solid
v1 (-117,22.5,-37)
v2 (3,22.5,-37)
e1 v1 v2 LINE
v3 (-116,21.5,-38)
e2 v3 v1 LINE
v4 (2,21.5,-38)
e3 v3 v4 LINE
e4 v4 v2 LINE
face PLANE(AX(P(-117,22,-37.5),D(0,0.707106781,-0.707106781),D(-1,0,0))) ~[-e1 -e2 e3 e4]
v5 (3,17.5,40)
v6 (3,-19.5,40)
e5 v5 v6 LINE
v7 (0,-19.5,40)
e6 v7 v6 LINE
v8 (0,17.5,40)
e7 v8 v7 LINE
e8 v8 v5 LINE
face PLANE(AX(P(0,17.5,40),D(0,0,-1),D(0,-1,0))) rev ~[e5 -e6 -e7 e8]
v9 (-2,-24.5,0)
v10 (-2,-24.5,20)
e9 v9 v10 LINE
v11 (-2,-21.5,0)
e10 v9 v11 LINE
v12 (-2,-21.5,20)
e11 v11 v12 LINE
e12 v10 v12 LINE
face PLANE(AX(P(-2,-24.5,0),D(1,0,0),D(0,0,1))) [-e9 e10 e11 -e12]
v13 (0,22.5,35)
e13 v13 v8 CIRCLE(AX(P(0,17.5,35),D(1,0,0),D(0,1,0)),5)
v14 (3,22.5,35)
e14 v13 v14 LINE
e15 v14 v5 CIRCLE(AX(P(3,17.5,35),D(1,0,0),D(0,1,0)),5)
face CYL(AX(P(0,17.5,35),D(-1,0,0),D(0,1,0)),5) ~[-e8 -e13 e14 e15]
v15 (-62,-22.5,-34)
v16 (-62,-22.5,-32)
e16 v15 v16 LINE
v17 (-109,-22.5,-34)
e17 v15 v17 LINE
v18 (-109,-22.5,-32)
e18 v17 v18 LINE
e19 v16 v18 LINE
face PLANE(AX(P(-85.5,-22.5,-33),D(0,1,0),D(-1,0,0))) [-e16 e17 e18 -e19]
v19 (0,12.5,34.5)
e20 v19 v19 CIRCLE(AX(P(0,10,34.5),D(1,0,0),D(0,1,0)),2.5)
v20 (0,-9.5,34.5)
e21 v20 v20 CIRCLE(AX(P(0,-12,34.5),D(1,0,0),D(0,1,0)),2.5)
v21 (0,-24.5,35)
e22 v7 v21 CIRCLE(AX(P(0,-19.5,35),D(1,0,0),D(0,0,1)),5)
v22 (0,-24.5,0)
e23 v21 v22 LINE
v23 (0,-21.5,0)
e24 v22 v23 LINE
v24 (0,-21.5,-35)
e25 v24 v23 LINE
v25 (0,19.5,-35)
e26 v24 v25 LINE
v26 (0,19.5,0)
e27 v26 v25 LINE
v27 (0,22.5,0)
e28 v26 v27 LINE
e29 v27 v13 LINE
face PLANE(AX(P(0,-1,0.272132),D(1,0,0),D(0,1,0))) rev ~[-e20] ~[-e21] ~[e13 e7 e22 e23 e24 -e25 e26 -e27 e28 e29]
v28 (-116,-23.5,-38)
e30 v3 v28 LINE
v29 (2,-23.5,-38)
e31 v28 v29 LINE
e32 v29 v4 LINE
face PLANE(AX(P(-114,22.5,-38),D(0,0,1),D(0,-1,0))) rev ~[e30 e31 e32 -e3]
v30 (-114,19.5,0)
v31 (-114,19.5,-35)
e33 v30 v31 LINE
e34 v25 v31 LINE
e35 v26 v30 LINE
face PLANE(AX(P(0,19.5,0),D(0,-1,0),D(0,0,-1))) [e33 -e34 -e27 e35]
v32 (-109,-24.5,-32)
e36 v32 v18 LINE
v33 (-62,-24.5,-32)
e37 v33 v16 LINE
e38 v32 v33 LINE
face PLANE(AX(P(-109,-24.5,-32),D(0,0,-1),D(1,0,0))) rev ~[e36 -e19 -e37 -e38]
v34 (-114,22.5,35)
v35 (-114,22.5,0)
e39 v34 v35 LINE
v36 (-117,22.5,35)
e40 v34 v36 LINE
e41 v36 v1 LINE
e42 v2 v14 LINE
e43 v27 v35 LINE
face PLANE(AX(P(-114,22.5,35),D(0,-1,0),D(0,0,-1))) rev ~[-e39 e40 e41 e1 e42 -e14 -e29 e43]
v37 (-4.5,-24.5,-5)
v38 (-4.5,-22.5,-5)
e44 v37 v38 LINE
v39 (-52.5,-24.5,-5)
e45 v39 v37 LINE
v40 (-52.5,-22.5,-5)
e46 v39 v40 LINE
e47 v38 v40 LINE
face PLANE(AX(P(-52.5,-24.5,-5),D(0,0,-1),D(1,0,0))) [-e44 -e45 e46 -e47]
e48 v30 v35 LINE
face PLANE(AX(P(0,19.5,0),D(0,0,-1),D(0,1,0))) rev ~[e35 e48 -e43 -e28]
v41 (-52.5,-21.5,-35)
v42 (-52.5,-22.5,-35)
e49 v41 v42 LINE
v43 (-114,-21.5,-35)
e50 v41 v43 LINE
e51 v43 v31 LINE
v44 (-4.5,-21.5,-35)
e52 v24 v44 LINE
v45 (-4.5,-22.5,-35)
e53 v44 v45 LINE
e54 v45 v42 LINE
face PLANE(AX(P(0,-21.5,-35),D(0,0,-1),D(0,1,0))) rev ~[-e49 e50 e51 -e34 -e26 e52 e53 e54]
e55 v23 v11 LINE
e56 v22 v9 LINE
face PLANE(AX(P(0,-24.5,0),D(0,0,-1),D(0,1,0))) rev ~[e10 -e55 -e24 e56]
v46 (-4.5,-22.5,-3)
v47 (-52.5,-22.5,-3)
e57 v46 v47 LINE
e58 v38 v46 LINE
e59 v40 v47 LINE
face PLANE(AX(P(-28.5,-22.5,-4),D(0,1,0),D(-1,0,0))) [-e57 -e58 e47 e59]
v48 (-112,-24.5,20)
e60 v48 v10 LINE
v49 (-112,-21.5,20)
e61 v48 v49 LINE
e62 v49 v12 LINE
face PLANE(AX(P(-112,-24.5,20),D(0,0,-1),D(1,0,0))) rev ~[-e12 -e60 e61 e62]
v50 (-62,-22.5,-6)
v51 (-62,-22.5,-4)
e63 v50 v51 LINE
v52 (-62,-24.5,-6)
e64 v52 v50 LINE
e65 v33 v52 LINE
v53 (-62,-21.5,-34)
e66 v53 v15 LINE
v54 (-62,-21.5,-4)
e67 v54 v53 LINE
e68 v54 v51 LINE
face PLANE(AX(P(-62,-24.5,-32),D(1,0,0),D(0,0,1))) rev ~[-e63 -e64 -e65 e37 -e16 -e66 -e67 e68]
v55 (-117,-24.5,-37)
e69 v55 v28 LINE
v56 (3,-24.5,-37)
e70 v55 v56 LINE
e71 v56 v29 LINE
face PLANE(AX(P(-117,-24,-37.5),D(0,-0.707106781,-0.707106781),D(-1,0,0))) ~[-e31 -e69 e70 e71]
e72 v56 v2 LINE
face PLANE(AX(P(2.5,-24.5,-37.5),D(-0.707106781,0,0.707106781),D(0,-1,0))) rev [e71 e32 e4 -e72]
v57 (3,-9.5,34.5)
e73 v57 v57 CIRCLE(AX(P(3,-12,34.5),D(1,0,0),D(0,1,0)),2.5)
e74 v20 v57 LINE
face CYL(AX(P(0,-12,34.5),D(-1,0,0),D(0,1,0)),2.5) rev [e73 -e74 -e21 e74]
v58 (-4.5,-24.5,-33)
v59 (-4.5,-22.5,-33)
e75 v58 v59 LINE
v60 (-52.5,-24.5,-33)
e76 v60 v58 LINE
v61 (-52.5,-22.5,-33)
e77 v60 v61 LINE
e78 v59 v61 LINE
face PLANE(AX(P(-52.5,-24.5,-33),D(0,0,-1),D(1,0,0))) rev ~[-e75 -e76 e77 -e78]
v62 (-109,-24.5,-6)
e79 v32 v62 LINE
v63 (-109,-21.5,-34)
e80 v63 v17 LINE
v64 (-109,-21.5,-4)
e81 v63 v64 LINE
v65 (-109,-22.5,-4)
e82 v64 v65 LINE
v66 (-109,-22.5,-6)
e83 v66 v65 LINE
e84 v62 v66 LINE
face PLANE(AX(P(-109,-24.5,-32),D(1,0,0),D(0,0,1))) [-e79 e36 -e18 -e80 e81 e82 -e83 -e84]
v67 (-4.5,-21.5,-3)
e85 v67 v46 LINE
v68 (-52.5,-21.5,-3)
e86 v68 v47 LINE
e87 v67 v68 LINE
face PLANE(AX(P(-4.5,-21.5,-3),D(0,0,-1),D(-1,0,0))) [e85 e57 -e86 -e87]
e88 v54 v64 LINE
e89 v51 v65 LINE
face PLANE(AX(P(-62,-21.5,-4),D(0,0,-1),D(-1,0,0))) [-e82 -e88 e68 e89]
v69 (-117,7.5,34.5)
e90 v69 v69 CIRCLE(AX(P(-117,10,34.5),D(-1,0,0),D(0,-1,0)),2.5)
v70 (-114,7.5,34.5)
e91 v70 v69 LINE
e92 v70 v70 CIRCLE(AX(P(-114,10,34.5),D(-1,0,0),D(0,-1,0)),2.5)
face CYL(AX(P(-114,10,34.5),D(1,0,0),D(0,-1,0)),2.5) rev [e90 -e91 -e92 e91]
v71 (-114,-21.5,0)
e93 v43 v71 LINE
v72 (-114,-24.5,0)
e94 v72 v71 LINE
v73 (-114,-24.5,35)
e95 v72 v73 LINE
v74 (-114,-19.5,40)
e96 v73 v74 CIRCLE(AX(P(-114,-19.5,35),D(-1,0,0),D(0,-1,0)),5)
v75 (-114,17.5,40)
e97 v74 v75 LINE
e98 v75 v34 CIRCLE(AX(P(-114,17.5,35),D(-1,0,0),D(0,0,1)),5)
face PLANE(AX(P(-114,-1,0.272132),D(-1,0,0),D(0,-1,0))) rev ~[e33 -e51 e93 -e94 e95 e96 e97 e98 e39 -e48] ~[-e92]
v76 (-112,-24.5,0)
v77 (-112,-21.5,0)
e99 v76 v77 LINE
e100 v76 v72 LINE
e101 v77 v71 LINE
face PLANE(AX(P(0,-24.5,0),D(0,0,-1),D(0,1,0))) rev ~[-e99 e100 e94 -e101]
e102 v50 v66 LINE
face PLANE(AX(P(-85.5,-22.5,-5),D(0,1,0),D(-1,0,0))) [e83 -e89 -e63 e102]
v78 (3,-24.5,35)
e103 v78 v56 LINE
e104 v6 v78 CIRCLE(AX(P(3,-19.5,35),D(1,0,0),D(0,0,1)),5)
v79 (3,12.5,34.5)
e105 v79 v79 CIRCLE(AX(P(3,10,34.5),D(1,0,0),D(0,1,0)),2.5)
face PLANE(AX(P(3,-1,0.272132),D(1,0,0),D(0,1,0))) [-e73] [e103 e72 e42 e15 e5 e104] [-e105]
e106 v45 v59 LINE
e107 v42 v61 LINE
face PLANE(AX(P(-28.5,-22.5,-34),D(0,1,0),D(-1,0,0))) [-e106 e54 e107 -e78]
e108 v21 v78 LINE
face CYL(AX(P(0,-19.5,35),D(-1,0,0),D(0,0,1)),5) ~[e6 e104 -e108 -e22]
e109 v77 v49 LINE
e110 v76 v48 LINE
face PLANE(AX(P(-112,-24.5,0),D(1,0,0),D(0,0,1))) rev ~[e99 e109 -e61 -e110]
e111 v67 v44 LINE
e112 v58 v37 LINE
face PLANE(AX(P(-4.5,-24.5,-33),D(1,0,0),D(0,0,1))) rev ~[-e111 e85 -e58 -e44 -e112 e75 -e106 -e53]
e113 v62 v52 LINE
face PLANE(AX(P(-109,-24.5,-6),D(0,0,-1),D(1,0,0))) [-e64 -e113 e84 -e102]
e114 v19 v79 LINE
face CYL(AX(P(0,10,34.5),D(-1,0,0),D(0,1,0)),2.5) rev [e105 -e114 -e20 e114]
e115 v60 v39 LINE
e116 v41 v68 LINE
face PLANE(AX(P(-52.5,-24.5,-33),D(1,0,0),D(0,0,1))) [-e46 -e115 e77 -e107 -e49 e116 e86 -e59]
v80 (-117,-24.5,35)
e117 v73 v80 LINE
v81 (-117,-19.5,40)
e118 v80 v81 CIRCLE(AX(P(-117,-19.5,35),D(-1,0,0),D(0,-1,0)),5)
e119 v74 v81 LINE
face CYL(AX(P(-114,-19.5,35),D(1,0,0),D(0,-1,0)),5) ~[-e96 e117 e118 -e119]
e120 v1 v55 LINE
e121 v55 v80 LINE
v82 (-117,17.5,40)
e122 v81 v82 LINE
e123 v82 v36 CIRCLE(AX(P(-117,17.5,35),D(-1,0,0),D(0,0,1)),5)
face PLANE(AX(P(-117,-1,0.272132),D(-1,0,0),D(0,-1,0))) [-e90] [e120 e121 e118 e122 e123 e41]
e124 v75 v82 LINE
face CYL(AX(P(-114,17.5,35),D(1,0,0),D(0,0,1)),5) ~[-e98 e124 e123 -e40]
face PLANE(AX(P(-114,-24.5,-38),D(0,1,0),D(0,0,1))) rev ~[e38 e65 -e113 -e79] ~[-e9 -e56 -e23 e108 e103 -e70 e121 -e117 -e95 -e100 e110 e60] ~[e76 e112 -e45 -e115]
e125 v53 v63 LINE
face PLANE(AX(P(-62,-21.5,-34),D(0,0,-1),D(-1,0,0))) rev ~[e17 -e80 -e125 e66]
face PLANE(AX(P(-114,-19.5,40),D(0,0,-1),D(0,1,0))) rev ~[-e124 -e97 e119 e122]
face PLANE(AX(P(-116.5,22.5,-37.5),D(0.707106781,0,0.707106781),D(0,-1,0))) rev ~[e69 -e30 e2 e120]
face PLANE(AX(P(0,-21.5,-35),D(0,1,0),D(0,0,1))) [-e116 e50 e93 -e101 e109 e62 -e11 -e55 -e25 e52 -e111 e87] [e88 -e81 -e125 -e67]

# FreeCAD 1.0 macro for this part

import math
import FreeCAD as App
import Part
import Sketcher
from FreeCAD import Vector
Q = App.Units.Quantity


def edges_at(feature, points):
    """Names of the edges that pass closest to the given points."""
    edges = feature.Shape.Edges
    near = lambda p: min(range(len(edges)), key=lambda i: edges[i].distToShape(Part.Vertex(*p))[0])
    return sorted({f"Edge{near(p) + 1}" for p in points})

doc = App.newDocument("Part")
body = doc.addObject("PartDesign::Body", "Body")

sketch1 = doc.addObject("Sketcher::SketchObject", "Sketch")
body.addObject(sketch1)
sketch1.AttachmentSupport = (doc.YZ_Plane, [""])
sketch1.MapMode = "FlatFace"
sketch1.addGeometry([
    Part.ArcOfCircle(Part.Circle(Vector(17.5, 35, 0), Vector(0, 0, 1), 5), math.radians(0), math.radians(90)),
    Part.LineSegment(Vector(17.5, 40, 0), Vector(-19.5, 40, 0)),
    Part.ArcOfCircle(Part.Circle(Vector(-19.5, 35, 0), Vector(0, 0, 1), 5), math.radians(90), math.radians(180)),
    Part.LineSegment(Vector(-24.5, 35, 0), Vector(-24.5, -38, 0)),
    Part.LineSegment(Vector(-24.5, -38, 0), Vector(22.5, -38, 0)),
    Part.LineSegment(Vector(22.5, -38, 0), Vector(22.5, 35, 0)),
    Part.Circle(Vector(-12, 34.5, 0), Vector(0, 0, 1), 2.5),
    Part.Circle(Vector(10, 34.5, 0), Vector(0, 0, 1), 2.5),
], False)
sketch1.addConstraint([
    Sketcher.Constraint("Tangent", 0, 2, 1, 1),
    Sketcher.Constraint("Tangent", 1, 2, 2, 1),
    Sketcher.Constraint("Tangent", 2, 2, 3, 1),
    Sketcher.Constraint("Coincident", 3, 2, 4, 1),
    Sketcher.Constraint("Coincident", 4, 2, 5, 1),
    Sketcher.Constraint("Tangent", 5, 2, 0, 1),
    Sketcher.Constraint("Horizontal", 1),
    Sketcher.Constraint("Vertical", 3),
    Sketcher.Constraint("Horizontal", 4),
    Sketcher.Constraint("Vertical", 5),
    Sketcher.Constraint("Equal", 0, 2),
    Sketcher.Constraint("Equal", 6, 7),
    Sketcher.Constraint("Horizontal", 6, 3, 7, 3),
    Sketcher.Constraint("Diameter", 6, Q("5 mm")),
    Sketcher.Constraint("Radius", 0, Q("5 mm")),
    Sketcher.Constraint("DistanceX", 1, 2, 1, 1, Q("37 mm")),
    Sketcher.Constraint("DistanceY", 3, 2, 3, 1, Q("73 mm")),
    Sketcher.Constraint("DistanceY", -1, 1, 0, 3, Q("35 mm")),
    Sketcher.Constraint("DistanceX", 6, 3, -1, 1, Q("12 mm")),
    Sketcher.Constraint("DistanceX", -1, 1, 7, 3, Q("10 mm")),
    Sketcher.Constraint("DistanceX", -1, 1, 0, 3, Q("17.5 mm")),
    Sketcher.Constraint("DistanceY", -1, 1, 6, 3, Q("34.5 mm")),
])
pad1 = doc.addObject("PartDesign::Pad", "Pad")
body.addObject(pad1)
pad1.Profile = sketch1
pad1.Length = 3

sketch2 = doc.addObject("Sketcher::SketchObject", "Sketch001")
body.addObject(sketch2)
sketch2.AttachmentSupport = (doc.YZ_Plane, [""])
sketch2.MapMode = "FlatFace"
sketch2.addGeometry([
    Part.LineSegment(Vector(-24.5, 0, 0), Vector(-24.5, -38, 0)),
    Part.LineSegment(Vector(-24.5, -38, 0), Vector(22.5, -38, 0)),
    Part.LineSegment(Vector(22.5, -38, 0), Vector(22.5, 0, 0)),
    Part.LineSegment(Vector(22.5, 0, 0), Vector(19.5, 0, 0)),
    Part.LineSegment(Vector(19.5, 0, 0), Vector(19.5, -35, 0)),
    Part.LineSegment(Vector(19.5, -35, 0), Vector(-21.5, -35, 0)),
    Part.LineSegment(Vector(-21.5, -35, 0), Vector(-21.5, 0, 0)),
    Part.LineSegment(Vector(-21.5, 0, 0), Vector(-24.5, 0, 0)),
], False)
sketch2.addConstraint([
    Sketcher.Constraint("Coincident", 0, 2, 1, 1),
    Sketcher.Constraint("Coincident", 1, 2, 2, 1),
    Sketcher.Constraint("Coincident", 2, 2, 3, 1),
    Sketcher.Constraint("Coincident", 3, 2, 4, 1),
    Sketcher.Constraint("Coincident", 4, 2, 5, 1),
    Sketcher.Constraint("Coincident", 5, 2, 6, 1),
    Sketcher.Constraint("Coincident", 6, 2, 7, 1),
    Sketcher.Constraint("Coincident", 7, 2, 0, 1),
    Sketcher.Constraint("Vertical", 0),
    Sketcher.Constraint("Horizontal", 1),
    Sketcher.Constraint("Vertical", 2),
    Sketcher.Constraint("Horizontal", 3),
    Sketcher.Constraint("Vertical", 4),
    Sketcher.Constraint("Horizontal", 5),
    Sketcher.Constraint("Vertical", 6),
    Sketcher.Constraint("Horizontal", 7),
    Sketcher.Constraint("PointOnObject", 2, 2, -1),
    Sketcher.Constraint("PointOnObject", 6, 2, -1),
    Sketcher.Constraint("Equal", 3, 7),
    Sketcher.Constraint("DistanceX", 1, 1, 1, 2, Q("47 mm")),
    Sketcher.Constraint("DistanceX", 3, 2, 3, 1, Q("3 mm")),
    Sketcher.Constraint("DistanceY", 0, 2, 0, 1, Q("38 mm")),
    Sketcher.Constraint("DistanceY", 4, 2, 4, 1, Q("35 mm")),
    Sketcher.Constraint("DistanceX", 0, 2, -1, 1, Q("24.5 mm")),
])
pad2 = doc.addObject("PartDesign::Pad", "Pad001")
body.addObject(pad2)
pad2.Profile = sketch2
pad2.Length = 114
pad2.Reversed = True

sketch3 = doc.addObject("Sketcher::SketchObject", "Sketch002")
body.addObject(sketch3)
sketch3.AttachmentSupport = (doc.YZ_Plane, [""])
sketch3.MapMode = "FlatFace"
sketch3.AttachmentOffset = App.Placement(Vector(0, 0, -114), App.Rotation())
sketch3.addGeometry([
    Part.ArcOfCircle(Part.Circle(Vector(-19.5, 35, 0), Vector(0, 0, 1), 5), math.radians(90), math.radians(180)),
    Part.LineSegment(Vector(-19.5, 40, 0), Vector(17.5, 40, 0)),
    Part.ArcOfCircle(Part.Circle(Vector(17.5, 35, 0), Vector(0, 0, 1), 5), math.radians(0), math.radians(90)),
    Part.LineSegment(Vector(22.5, 35, 0), Vector(22.5, -38, 0)),
    Part.LineSegment(Vector(22.5, -38, 0), Vector(-24.5, -38, 0)),
    Part.LineSegment(Vector(-24.5, -38, 0), Vector(-24.5, 35, 0)),
    Part.Circle(Vector(10, 34.5, 0), Vector(0, 0, 1), 2.5),
], False)
sketch3.addConstraint([
    Sketcher.Constraint("Tangent", 0, 1, 1, 1),
    Sketcher.Constraint("Tangent", 1, 2, 2, 2),
    Sketcher.Constraint("Tangent", 2, 1, 3, 1),
    Sketcher.Constraint("Coincident", 3, 2, 4, 1),
    Sketcher.Constraint("Coincident", 4, 2, 5, 1),
    Sketcher.Constraint("Tangent", 5, 2, 0, 2),
    Sketcher.Constraint("Horizontal", 1),
    Sketcher.Constraint("Vertical", 3),
    Sketcher.Constraint("Horizontal", 4),
    Sketcher.Constraint("Vertical", 5),
    Sketcher.Constraint("Equal", 0, 2),
    Sketcher.Constraint("Diameter", 6, Q("5 mm")),
    Sketcher.Constraint("Radius", 0, Q("5 mm")),
    Sketcher.Constraint("DistanceX", 1, 1, 1, 2, Q("37 mm")),
    Sketcher.Constraint("DistanceY", 3, 2, 3, 1, Q("73 mm")),
    Sketcher.Constraint("DistanceY", -1, 1, 0, 3, Q("35 mm")),
    Sketcher.Constraint("DistanceX", -1, 1, 6, 3, Q("10 mm")),
    Sketcher.Constraint("DistanceX", 0, 3, -1, 1, Q("19.5 mm")),
    Sketcher.Constraint("DistanceY", -1, 1, 6, 3, Q("34.5 mm")),
])
pad3 = doc.addObject("PartDesign::Pad", "Pad002")
body.addObject(pad3)
pad3.Profile = sketch3
pad3.Length = 3
pad3.Reversed = True

sketch4 = doc.addObject("Sketcher::SketchObject", "Sketch003")
body.addObject(sketch4)
sketch4.AttachmentSupport = (doc.XZ_Plane, [""])
sketch4.MapMode = "FlatFace"
sketch4.AttachmentOffset = App.Placement(Vector(0, 0, 24.5), App.Rotation())
sketch4.addGeometry([
    Part.LineSegment(Vector(-112, 20, 0), Vector(-112, 0, 0)),
    Part.LineSegment(Vector(-112, 0, 0), Vector(-2, 0, 0)),
    Part.LineSegment(Vector(-2, 0, 0), Vector(-2, 20, 0)),
    Part.LineSegment(Vector(-2, 20, 0), Vector(-112, 20, 0)),
], False)
sketch4.addConstraint([
    Sketcher.Constraint("Coincident", 0, 2, 1, 1),
    Sketcher.Constraint("Coincident", 1, 2, 2, 1),
    Sketcher.Constraint("Coincident", 2, 2, 3, 1),
    Sketcher.Constraint("Coincident", 3, 2, 0, 1),
    Sketcher.Constraint("Vertical", 0),
    Sketcher.Constraint("Horizontal", 1),
    Sketcher.Constraint("Vertical", 2),
    Sketcher.Constraint("Horizontal", 3),
    Sketcher.Constraint("PointOnObject", 0, 2, -1),
    Sketcher.Constraint("DistanceX", 1, 1, 1, 2, Q("110 mm")),
    Sketcher.Constraint("DistanceY", 0, 2, 0, 1, Q("20 mm")),
    Sketcher.Constraint("DistanceX", 0, 2, -1, 1, Q("112 mm")),
])
pad4 = doc.addObject("PartDesign::Pad", "Pad003")
body.addObject(pad4)
pad4.Profile = sketch4
pad4.Length = 3
pad4.Reversed = True

sketch5 = doc.addObject("Sketcher::SketchObject", "Sketch004")
body.addObject(sketch5)
sketch5.AttachmentSupport = (doc.XZ_Plane, [""])
sketch5.MapMode = "FlatFace"
sketch5.AttachmentOffset = App.Placement(Vector(0, 0, 24.5), App.Rotation())
sketch5.addGeometry([
    Part.LineSegment(Vector(-109, -6, 0), Vector(-109, -32, 0)),
    Part.LineSegment(Vector(-109, -32, 0), Vector(-62, -32, 0)),
    Part.LineSegment(Vector(-62, -32, 0), Vector(-62, -6, 0)),
    Part.LineSegment(Vector(-62, -6, 0), Vector(-109, -6, 0)),
    Part.LineSegment(Vector(-52, -5, 0), Vector(-52, -33, 0)),
    Part.LineSegment(Vector(-52, -33, 0), Vector(-4, -33, 0)),
    Part.LineSegment(Vector(-4, -33, 0), Vector(-4, -5, 0)),
    Part.LineSegment(Vector(-4, -5, 0), Vector(-52, -5, 0)),
], False)
sketch5.addConstraint([
    Sketcher.Constraint("Coincident", 0, 2, 1, 1),
    Sketcher.Constraint("Coincident", 1, 2, 2, 1),
    Sketcher.Constraint("Coincident", 2, 2, 3, 1),
    Sketcher.Constraint("Coincident", 3, 2, 0, 1),
    Sketcher.Constraint("Coincident", 4, 2, 5, 1),
    Sketcher.Constraint("Coincident", 5, 2, 6, 1),
    Sketcher.Constraint("Coincident", 6, 2, 7, 1),
    Sketcher.Constraint("Coincident", 7, 2, 4, 1),
    Sketcher.Constraint("Vertical", 0),
    Sketcher.Constraint("Horizontal", 1),
    Sketcher.Constraint("Vertical", 2),
    Sketcher.Constraint("Horizontal", 3),
    Sketcher.Constraint("Vertical", 4),
    Sketcher.Constraint("Horizontal", 5),
    Sketcher.Constraint("Vertical", 6),
    Sketcher.Constraint("Horizontal", 7),
    Sketcher.Constraint("DistanceX", 1, 1, 1, 2, Q("47 mm")),
    Sketcher.Constraint("DistanceX", 5, 1, 5, 2, Q("48 mm")),
    Sketcher.Constraint("DistanceY", 0, 2, 0, 1, Q("26 mm")),
    Sketcher.Constraint("DistanceY", 4, 2, 4, 1, Q("28 mm")),
    Sketcher.Constraint("DistanceX", 0, 2, -1, 1, Q("109 mm")),
    Sketcher.Constraint("DistanceY", 0, 2, -1, 1, Q("32 mm")),
    Sketcher.Constraint("DistanceY", 4, 2, -1, 1, Q("33 mm")),
    Sketcher.Constraint("DistanceX", 4, 2, -1, 1, Q("52.5 mm")),
])
pocket1 = doc.addObject("PartDesign::Pocket", "Pocket")
body.addObject(pocket1)
pocket1.Profile = sketch5
pocket1.Length = 3
doc.recompute()

chamfer = doc.addObject("PartDesign::Chamfer", "Chamfer")
body.addObject(chamfer)
chamfer.Base = (pocket1, edges_at(pocket1, [
    (-57, -24.5, -38),
    (3, -1, -38),
    (-57, 22.5, -38),
    (-117, -1, -38),
]))
chamfer.Size = 1

sketch6 = doc.addObject("Sketcher::SketchObject", "Sketch005")
body.addObject(sketch6)
sketch6.AttachmentSupport = (doc.XZ_Plane, [""])
sketch6.MapMode = "FlatFace"
sketch6.AttachmentOffset = App.Placement(Vector(0, 0, 21.5), App.Rotation())
sketch6.addGeometry([
    Part.LineSegment(Vector(-4.5, -33, 0), Vector(-4.5, -35, 0)),
    Part.LineSegment(Vector(-4.5, -35, 0), Vector(-52.5, -35, 0)),
    Part.LineSegment(Vector(-52.5, -35, 0), Vector(-52.5, -33, 0)),
    Part.LineSegment(Vector(-52.5, -33, 0), Vector(-4.5, -33, 0)),
    Part.LineSegment(Vector(-62, -32, 0), Vector(-62, -34, 0)),
    Part.LineSegment(Vector(-62, -34, 0), Vector(-109, -34, 0)),
    Part.LineSegment(Vector(-109, -34, 0), Vector(-109, -32, 0)),
    Part.LineSegment(Vector(-109, -32, 0), Vector(-62, -32, 0)),
    Part.LineSegment(Vector(-62, -4, 0), Vector(-62, -6, 0)),
    Part.LineSegment(Vector(-62, -6, 0), Vector(-109, -6, 0)),
    Part.LineSegment(Vector(-109, -6, 0), Vector(-109, -4, 0)),
    Part.LineSegment(Vector(-109, -4, 0), Vector(-62, -4, 0)),
    Part.LineSegment(Vector(-4.5, -3, 0), Vector(-4.5, -5, 0)),
    Part.LineSegment(Vector(-4.5, -5, 0), Vector(-52.5, -5, 0)),
    Part.LineSegment(Vector(-52.5, -5, 0), Vector(-52.5, -3, 0)),
    Part.LineSegment(Vector(-52.5, -3, 0), Vector(-4.5, -3, 0)),
], False)
sketch6.addConstraint([
    Sketcher.Constraint("Coincident", 0, 2, 1, 1),
    Sketcher.Constraint("Coincident", 1, 2, 2, 1),
    Sketcher.Constraint("Coincident", 2, 2, 3, 1),
    Sketcher.Constraint("Coincident", 3, 2, 0, 1),
    Sketcher.Constraint("Coincident", 4, 2, 5, 1),
    Sketcher.Constraint("Coincident", 5, 2, 6, 1),
    Sketcher.Constraint("Coincident", 6, 2, 7, 1),
    Sketcher.Constraint("Coincident", 7, 2, 4, 1),
    Sketcher.Constraint("Coincident", 8, 2, 9, 1),
    Sketcher.Constraint("Coincident", 9, 2, 10, 1),
    Sketcher.Constraint("Coincident", 10, 2, 11, 1),
    Sketcher.Constraint("Coincident", 11, 2, 8, 1),
    Sketcher.Constraint("Coincident", 12, 2, 13, 1),
    Sketcher.Constraint("Coincident", 13, 2, 14, 1),
    Sketcher.Constraint("Coincident", 14, 2, 15, 1),
    Sketcher.Constraint("Coincident", 15, 2, 12, 1),
    Sketcher.Constraint("Vertical", 0),
    Sketcher.Constraint("Horizontal", 1),
    Sketcher.Constraint("Vertical", 2),
    Sketcher.Constraint("Horizontal", 3),
    Sketcher.Constraint("Vertical", 4),
    Sketcher.Constraint("Horizontal", 5),
    Sketcher.Constraint("Vertical", 6),
    Sketcher.Constraint("Horizontal", 7),
    Sketcher.Constraint("Vertical", 8),
    Sketcher.Constraint("Horizontal", 9),
    Sketcher.Constraint("Vertical", 10),
    Sketcher.Constraint("Horizontal", 11),
    Sketcher.Constraint("Vertical", 12),
    Sketcher.Constraint("Horizontal", 13),
    Sketcher.Constraint("Vertical", 14),
    Sketcher.Constraint("Horizontal", 15),
    Sketcher.Constraint("Vertical", 7, 2, 8, 2),
    Sketcher.Constraint("Vertical", 6, 2, 9, 2),
    Sketcher.Constraint("Vertical", 3, 2, 12, 2),
    Sketcher.Constraint("Vertical", 2, 2, 13, 2),
    Sketcher.Constraint("Equal", 2, 4),
    Sketcher.Constraint("Equal", 6, 8),
    Sketcher.Constraint("Equal", 10, 12),
    Sketcher.Constraint("DistanceX", 1, 2, 1, 1, Q("48 mm")),
    Sketcher.Constraint("DistanceX", 5, 2, 5, 1, Q("47 mm")),
    Sketcher.Constraint("DistanceY", 0, 2, 0, 1, Q("2 mm")),
    Sketcher.Constraint("DistanceY", 0, 2, -1, 1, Q("35 mm")),
    Sketcher.Constraint("DistanceX", 4, 2, -1, 1, Q("62 mm")),
    Sketcher.Constraint("DistanceY", 4, 2, -1, 1, Q("34 mm")),
    Sketcher.Constraint("DistanceY", 8, 2, -1, 1, Q("6 mm")),
    Sketcher.Constraint("DistanceY", 12, 2, -1, 1, Q("5 mm")),
    Sketcher.Constraint("DistanceX", 0, 2, -1, 1, Q("4.5 mm")),
])
pocket2 = doc.addObject("PartDesign::Pocket", "Pocket001")
body.addObject(pocket2)
pocket2.Profile = sketch6
pocket2.Length = 1
pocket2.Reversed = True

doc.recompute()
